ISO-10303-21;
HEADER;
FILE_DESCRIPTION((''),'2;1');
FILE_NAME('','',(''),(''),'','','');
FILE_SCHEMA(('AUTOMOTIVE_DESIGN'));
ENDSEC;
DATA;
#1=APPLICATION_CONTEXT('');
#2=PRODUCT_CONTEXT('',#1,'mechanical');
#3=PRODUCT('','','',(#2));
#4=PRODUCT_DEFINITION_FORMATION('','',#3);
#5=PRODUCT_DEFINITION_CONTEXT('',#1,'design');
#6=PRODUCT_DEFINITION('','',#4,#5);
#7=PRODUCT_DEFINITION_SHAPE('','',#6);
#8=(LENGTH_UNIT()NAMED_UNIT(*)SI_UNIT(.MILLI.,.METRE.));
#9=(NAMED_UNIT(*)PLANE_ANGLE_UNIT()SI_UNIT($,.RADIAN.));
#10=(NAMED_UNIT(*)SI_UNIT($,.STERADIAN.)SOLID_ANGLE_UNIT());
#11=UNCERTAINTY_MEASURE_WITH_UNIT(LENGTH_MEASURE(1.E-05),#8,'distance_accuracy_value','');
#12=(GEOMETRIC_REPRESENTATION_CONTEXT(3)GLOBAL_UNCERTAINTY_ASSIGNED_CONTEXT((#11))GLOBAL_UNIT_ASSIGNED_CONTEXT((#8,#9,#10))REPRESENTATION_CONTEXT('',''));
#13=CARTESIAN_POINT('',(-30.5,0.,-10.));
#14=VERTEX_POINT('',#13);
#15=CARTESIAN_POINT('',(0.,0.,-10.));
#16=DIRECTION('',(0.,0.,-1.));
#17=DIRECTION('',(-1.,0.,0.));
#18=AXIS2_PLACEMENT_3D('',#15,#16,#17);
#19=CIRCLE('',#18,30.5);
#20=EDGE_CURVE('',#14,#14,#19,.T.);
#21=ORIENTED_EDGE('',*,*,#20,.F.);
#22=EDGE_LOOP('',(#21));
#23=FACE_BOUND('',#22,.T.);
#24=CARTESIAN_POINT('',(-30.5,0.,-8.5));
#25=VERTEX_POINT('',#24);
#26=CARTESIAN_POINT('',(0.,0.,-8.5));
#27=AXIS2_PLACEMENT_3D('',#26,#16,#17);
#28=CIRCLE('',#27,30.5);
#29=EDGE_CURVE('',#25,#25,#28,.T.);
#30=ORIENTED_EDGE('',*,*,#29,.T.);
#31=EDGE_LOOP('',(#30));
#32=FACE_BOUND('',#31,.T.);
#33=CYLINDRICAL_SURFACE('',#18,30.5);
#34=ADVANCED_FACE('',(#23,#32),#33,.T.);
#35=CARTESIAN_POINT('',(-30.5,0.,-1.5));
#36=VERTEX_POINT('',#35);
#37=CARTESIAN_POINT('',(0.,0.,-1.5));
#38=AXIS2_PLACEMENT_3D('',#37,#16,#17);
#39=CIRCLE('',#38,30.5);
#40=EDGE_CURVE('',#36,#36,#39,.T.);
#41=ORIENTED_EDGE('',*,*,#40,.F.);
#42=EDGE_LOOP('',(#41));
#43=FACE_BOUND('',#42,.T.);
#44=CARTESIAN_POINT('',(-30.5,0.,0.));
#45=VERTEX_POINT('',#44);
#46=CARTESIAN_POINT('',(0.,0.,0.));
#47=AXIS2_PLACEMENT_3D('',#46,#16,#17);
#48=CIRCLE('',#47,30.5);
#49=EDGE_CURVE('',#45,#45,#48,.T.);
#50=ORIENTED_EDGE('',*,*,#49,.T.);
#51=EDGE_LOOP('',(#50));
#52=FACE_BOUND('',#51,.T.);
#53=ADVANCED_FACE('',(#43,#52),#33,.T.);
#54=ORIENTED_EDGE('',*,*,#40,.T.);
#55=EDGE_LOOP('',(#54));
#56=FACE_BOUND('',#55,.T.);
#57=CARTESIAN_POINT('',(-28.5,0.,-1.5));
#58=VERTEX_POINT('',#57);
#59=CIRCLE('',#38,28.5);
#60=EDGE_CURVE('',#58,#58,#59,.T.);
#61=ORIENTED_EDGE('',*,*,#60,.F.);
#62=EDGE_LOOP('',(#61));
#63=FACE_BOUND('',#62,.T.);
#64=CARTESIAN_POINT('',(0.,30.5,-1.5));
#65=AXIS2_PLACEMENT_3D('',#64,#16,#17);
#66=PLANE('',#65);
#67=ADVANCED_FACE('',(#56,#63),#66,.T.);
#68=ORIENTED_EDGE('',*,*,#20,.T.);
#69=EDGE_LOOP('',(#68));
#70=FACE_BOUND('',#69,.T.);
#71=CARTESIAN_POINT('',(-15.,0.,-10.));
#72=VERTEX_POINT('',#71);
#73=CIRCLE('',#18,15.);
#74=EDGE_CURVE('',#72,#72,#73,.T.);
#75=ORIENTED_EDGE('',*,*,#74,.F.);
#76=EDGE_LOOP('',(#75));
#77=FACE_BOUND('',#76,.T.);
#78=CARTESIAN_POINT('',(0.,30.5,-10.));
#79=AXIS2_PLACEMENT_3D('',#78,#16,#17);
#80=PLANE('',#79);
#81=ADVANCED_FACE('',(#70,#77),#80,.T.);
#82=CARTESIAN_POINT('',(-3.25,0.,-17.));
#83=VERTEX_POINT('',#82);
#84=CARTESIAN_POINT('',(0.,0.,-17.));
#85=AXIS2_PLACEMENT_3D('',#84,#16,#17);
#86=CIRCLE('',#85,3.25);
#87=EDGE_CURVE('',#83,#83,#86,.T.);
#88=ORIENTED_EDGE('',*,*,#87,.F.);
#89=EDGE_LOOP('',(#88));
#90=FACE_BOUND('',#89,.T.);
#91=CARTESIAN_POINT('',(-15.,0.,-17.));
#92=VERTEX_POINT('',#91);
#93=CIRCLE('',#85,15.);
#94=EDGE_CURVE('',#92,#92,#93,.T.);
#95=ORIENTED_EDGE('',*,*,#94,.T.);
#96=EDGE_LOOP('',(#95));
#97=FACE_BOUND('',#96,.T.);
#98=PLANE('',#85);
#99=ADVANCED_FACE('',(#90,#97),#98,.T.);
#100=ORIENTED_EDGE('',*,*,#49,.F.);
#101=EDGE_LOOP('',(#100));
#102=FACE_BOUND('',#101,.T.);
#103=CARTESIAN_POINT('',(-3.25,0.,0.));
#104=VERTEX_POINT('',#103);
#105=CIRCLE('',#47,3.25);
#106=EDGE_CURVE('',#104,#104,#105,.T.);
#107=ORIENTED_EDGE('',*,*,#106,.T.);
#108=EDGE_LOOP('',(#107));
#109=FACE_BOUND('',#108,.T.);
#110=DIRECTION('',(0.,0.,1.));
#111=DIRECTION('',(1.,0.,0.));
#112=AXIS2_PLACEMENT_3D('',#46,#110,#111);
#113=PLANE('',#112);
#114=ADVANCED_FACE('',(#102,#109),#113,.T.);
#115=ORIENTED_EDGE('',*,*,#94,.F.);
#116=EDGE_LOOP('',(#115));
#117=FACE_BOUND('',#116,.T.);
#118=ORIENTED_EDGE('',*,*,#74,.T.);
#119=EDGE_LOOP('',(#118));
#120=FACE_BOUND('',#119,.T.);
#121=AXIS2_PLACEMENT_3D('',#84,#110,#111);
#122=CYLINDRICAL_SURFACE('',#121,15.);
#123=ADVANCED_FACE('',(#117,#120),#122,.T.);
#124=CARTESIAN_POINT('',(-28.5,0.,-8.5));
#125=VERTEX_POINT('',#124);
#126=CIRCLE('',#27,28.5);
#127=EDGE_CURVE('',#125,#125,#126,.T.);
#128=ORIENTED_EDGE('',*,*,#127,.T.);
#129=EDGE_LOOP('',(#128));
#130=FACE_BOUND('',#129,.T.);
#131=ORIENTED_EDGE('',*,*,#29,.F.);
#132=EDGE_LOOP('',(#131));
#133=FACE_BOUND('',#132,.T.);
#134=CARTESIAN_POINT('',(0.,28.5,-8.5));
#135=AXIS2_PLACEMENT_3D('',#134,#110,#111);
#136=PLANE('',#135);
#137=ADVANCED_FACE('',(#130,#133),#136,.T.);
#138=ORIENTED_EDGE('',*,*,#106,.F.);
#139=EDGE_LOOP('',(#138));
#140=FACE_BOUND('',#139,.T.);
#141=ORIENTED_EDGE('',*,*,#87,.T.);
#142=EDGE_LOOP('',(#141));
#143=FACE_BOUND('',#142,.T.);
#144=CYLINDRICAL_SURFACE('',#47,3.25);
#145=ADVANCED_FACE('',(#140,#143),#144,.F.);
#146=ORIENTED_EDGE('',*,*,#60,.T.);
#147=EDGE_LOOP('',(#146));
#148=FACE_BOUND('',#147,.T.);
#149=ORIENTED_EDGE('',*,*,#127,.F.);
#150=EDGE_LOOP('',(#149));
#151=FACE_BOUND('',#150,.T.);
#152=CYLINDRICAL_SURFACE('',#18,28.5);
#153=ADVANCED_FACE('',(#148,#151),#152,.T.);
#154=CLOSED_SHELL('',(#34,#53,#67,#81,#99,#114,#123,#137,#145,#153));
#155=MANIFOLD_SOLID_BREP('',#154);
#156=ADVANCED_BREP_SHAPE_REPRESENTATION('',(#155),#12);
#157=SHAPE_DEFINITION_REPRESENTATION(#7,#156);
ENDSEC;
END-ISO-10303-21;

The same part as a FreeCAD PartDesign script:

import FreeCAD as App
import Part
import Sketcher

V = App.Vector
Q = App.Units.Quantity

doc = App.newDocument("Part")
params = doc.addObject("Spreadsheet::Sheet", "Params")
for row, (alias, value) in enumerate([
    ("sketch1_width", "2 mm"),
    ("sketch1_height", "10 mm"),
    ("sketch1_height2", "7 mm"),
    ("sketch1_width2", "30.5 mm"),
    ("revolution_angle", "360 deg"),
    ("sketch2_diameter", "30 mm"),
    ("pad1_length", "7 mm"),
    ("sketch3_diameter", "6.5 mm"),
], start=1):
    params.set(f"A{row}", alias)
    params.set(f"B{row}", "=" + value)
    params.setAlias(f"B{row}", alias)

body = doc.addObject("PartDesign::Body", "Body")

sketch1 = body.newObject("Sketcher::SketchObject", "Sketch")
sketch1.AttachmentSupport = (doc.getObject("YZ_Plane"), [""])
sketch1.MapMode = "FlatFace"
sketch1.addGeometry([
    Part.LineSegment(V(30.5, 0, 0), V(0, 0, 0)),
    Part.LineSegment(V(0, 0, 0), V(0, -10, 0)),
    Part.LineSegment(V(0, -10, 0), V(30.5, -10, 0)),
    Part.LineSegment(V(30.5, -10, 0), V(30.5, -8.5, 0)),
    Part.LineSegment(V(30.5, -8.5, 0), V(28.5, -8.5, 0)),
    Part.LineSegment(V(28.5, -8.5, 0), V(28.5, -1.5, 0)),
    Part.LineSegment(V(28.5, -1.5, 0), V(30.5, -1.5, 0)),
    Part.LineSegment(V(30.5, -1.5, 0), V(30.5, 0, 0)),
], False)
sketch1.addConstraint([
    Sketcher.Constraint("Coincident", 0, 2, 1, 1),
    Sketcher.Constraint("Coincident", 1, 2, 2, 1),
    Sketcher.Constraint("Coincident", 2, 2, 3, 1),
    Sketcher.Constraint("Coincident", 3, 2, 4, 1),
    Sketcher.Constraint("Coincident", 4, 2, 5, 1),
    Sketcher.Constraint("Coincident", 5, 2, 6, 1),
    Sketcher.Constraint("Coincident", 6, 2, 7, 1),
    Sketcher.Constraint("Coincident", 7, 2, 0, 1),
    Sketcher.Constraint("Horizontal", 0),
    Sketcher.Constraint("Vertical", 1),
    Sketcher.Constraint("Horizontal", 2),
    Sketcher.Constraint("Vertical", 3),
    Sketcher.Constraint("Horizontal", 4),
    Sketcher.Constraint("Vertical", 5),
    Sketcher.Constraint("Horizontal", 6),
    Sketcher.Constraint("Vertical", 7),
    Sketcher.Constraint("Coincident", 0, 2, -1, 1),
    Sketcher.Constraint("Vertical", 3, 2, 6, 2),
    Sketcher.Constraint("Equal", 3, 7),
    Sketcher.Constraint("DistanceX", 4, 2, 4, 1, Q("2 mm")),
    Sketcher.Constraint("DistanceY", 1, 2, 1, 1, Q("10 mm")),
    Sketcher.Constraint("DistanceY", 5, 1, 5, 2, Q("7 mm")),
    Sketcher.Constraint("DistanceX", 0, 2, 0, 1, Q("30.5 mm")),
])
sketch1.setExpression("Constraints[19]", "Params.sketch1_width")
sketch1.setExpression("Constraints[20]", "Params.sketch1_height")
sketch1.setExpression("Constraints[21]", "Params.sketch1_height2")
sketch1.setExpression("Constraints[22]", "Params.sketch1_width2")
revolution = body.newObject("PartDesign::Revolution", "Revolution")
revolution.Profile = sketch1
revolution.ReferenceAxis = (sketch1, ["V_Axis"])
revolution.setExpression("Angle", "Params.revolution_angle")

sketch2 = body.newObject("Sketcher::SketchObject", "Sketch001")
sketch2.AttachmentSupport = (doc.getObject("XY_Plane"), [""])
sketch2.MapMode = "FlatFace"
sketch2.AttachmentOffset = App.Placement(V(0, 0, -10), App.Rotation())
sketch2.addGeometry(Part.Circle(V(0, 0, 0), V(0, 0, 1), 15), False)
sketch2.addConstraint([
    Sketcher.Constraint("Coincident", 0, 3, -1, 1),
    Sketcher.Constraint("Diameter", 0, Q("30 mm")),
])
sketch2.setExpression("Constraints[1]", "Params.sketch2_diameter")
pad1 = body.newObject("PartDesign::Pad", "Pad")
pad1.Profile = sketch2
pad1.setExpression("Length", "Params.pad1_length")
pad1.Reversed = True

sketch3 = body.newObject("Sketcher::SketchObject", "Sketch002")
sketch3.AttachmentSupport = (doc.getObject("XY_Plane"), [""])
sketch3.MapMode = "FlatFace"
sketch3.AttachmentOffset = App.Placement(V(0, 0, -17), App.Rotation())
sketch3.addGeometry(Part.Circle(V(0, 0, 0), V(0, 0, 1), 3.25), False)
sketch3.addConstraint([
    Sketcher.Constraint("Coincident", 0, 3, -1, 1),
    Sketcher.Constraint("Diameter", 0, Q("6.5 mm")),
])
sketch3.setExpression("Constraints[1]", "Params.sketch3_diameter")
pocket1 = body.newObject("PartDesign::Pocket", "Pocket")
pocket1.Profile = sketch3
pocket1.Type = "ThroughAll"
pocket1.Reversed = True

doc.recompute()
